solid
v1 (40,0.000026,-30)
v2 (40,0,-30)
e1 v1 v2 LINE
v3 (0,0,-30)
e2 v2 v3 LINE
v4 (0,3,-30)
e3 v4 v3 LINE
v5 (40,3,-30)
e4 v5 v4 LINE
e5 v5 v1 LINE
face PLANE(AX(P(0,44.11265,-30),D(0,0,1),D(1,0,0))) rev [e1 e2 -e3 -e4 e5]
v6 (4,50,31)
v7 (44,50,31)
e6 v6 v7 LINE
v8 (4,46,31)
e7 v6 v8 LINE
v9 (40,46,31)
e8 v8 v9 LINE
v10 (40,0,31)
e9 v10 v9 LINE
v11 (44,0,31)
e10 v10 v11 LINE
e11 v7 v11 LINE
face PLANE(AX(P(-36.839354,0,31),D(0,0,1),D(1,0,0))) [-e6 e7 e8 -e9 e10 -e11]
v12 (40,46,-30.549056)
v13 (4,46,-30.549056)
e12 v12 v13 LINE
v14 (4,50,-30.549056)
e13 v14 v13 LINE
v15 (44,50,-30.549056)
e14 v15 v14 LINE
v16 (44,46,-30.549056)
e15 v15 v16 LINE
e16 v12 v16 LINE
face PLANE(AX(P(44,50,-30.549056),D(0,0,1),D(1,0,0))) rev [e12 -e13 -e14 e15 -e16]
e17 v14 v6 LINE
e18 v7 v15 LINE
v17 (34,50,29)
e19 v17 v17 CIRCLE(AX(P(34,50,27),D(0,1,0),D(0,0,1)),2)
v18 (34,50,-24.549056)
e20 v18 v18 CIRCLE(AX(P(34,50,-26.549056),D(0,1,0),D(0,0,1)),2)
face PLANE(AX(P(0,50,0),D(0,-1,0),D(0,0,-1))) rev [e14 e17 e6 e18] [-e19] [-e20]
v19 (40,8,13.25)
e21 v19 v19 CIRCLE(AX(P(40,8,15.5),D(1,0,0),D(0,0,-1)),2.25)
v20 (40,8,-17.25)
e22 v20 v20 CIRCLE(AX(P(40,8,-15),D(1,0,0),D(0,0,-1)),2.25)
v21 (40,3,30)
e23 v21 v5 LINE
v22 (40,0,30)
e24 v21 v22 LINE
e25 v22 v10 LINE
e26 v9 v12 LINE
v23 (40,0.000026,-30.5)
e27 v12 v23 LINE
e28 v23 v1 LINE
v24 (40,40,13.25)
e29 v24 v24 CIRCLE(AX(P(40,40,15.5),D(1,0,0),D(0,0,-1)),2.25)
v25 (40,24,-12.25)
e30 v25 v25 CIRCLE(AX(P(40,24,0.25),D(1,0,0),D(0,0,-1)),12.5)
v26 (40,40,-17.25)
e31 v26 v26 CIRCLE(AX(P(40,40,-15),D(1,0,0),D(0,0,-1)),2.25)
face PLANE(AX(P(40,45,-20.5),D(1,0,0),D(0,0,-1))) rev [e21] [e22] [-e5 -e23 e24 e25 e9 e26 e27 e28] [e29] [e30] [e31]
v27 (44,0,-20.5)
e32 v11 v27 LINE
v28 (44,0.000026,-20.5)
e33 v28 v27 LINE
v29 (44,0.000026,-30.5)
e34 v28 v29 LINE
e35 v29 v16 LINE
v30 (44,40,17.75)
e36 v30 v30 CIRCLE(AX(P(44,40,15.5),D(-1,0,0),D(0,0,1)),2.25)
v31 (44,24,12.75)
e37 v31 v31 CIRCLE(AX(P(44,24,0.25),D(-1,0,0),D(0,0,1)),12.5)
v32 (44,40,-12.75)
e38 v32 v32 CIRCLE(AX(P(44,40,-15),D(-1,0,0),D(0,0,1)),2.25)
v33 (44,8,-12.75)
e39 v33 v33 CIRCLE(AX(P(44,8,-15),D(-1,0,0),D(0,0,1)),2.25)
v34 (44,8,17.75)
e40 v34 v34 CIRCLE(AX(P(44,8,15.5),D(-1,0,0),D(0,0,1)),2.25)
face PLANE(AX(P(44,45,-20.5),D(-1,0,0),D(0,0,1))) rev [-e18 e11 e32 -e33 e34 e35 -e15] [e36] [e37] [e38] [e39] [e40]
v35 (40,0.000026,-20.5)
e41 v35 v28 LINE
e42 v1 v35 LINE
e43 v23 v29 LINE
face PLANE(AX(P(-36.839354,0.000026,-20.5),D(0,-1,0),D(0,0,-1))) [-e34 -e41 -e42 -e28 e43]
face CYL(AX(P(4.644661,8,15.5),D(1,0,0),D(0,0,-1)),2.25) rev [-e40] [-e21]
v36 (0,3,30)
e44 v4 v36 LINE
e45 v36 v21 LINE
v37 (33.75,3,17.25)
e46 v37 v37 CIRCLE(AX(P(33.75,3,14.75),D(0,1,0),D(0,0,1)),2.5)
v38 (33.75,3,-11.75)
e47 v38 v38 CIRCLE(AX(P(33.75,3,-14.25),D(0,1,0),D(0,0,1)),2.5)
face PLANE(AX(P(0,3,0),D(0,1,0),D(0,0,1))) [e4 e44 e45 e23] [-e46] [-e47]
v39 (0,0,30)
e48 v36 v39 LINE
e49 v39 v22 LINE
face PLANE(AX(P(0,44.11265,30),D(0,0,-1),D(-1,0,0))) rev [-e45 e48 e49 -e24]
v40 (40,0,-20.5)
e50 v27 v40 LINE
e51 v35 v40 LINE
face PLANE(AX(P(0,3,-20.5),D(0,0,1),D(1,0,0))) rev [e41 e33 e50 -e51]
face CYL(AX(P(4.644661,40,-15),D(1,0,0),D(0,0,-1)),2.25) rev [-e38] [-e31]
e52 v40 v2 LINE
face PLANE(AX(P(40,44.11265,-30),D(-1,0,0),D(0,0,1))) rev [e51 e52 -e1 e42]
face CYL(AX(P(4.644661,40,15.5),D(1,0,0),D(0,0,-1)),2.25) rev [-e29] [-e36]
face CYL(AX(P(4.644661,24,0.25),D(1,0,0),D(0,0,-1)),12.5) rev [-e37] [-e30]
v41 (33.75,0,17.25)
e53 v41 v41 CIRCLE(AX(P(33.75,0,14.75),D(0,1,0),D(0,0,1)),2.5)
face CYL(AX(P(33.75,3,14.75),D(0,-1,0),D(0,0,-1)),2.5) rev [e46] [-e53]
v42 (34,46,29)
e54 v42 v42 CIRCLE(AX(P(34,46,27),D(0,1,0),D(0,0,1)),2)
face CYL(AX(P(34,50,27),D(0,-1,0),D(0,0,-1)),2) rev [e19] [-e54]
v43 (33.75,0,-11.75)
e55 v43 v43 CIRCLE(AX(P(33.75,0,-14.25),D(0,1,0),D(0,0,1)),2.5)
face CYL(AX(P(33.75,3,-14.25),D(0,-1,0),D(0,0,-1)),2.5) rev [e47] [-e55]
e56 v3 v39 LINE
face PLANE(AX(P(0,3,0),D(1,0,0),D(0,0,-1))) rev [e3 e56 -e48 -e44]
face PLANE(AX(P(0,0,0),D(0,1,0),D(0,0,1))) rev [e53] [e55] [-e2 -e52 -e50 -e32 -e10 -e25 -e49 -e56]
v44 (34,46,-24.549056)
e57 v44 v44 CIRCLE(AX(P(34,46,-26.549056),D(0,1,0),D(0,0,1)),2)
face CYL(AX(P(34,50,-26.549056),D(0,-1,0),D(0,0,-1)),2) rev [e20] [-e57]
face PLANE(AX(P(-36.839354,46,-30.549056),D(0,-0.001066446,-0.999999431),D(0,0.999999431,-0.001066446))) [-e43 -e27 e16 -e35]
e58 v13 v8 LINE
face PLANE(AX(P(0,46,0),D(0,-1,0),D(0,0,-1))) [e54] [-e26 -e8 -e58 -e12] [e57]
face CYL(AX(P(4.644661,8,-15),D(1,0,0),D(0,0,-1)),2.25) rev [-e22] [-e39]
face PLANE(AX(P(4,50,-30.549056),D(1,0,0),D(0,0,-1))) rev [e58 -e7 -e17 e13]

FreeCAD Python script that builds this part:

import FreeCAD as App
import Part
import Sketcher

V = App.Vector


def add_polygon(sketch, points):
    """Adds a closed chain of lines whose ends are joined by coincident constraints."""
    first, n = sketch.GeometryCount, len(points)
    for a, b in zip(points, points[1:] + points[:1]):
        sketch.addGeometry(Part.LineSegment(App.Vector(*a, 0), App.Vector(*b, 0)), False)
    for i in range(n):
        sketch.addConstraint(Sketcher.Constraint("Coincident", first + i, 2, first + (i + 1) % n, 1))

doc = App.newDocument("Part")
body = doc.addObject("PartDesign::Body", "Body")

# Sketch on XZ plane
sketch1 = doc.addObject("Sketcher::SketchObject", "Sketch")
body.addObject(sketch1)
sketch1.AttachmentSupport = (doc.XZ_Plane, [""])
sketch1.MapMode = "FlatFace"
add_polygon(sketch1, [(0, -20.5), (0, 21), (40, 21), (40, -20.5)])  # lines 0-3
sketch1.addGeometry(Part.Circle(V(33.8, 14.8, 0), V(0, 0, 1), 2.5), False)  # 4
sketch1.addGeometry(Part.Circle(V(33.8, -14.2, 0), V(0, 0, 1), 2.5), False)  # 5
sketch1.addConstraint(Sketcher.Constraint("Vertical", 0))
sketch1.addConstraint(Sketcher.Constraint("Horizontal", 1))
sketch1.addConstraint(Sketcher.Constraint("Vertical", 2))
sketch1.addConstraint(Sketcher.Constraint("Horizontal", 3))
sketch1.addConstraint(Sketcher.Constraint("Equal", 4, 5))
sketch1.addConstraint(Sketcher.Constraint("PointOnObject", 0, 2, -2))
sketch1.addConstraint(Sketcher.Constraint("Vertical", 4, 3, 5, 3))
sketch1.addConstraint(Sketcher.Constraint("Diameter", 4, 5.0))
sketch1.addConstraint(Sketcher.Constraint("DistanceX", 1, 1, 1, 2, 40.0))
sketch1.addConstraint(Sketcher.Constraint("DistanceY", 0, 1, 0, 2, 41.5))
sketch1.addConstraint(Sketcher.Constraint("DistanceY", -1, 1, 0, 2, 21.0))
sketch1.addConstraint(Sketcher.Constraint("DistanceY", 5, 3, 4, 3, 29.0))
sketch1.addConstraint(Sketcher.Constraint("DistanceX", -1, 1, 4, 3, 33.75))
sketch1.addConstraint(Sketcher.Constraint("DistanceY", -1, 1, 4, 3, 14.75))
pad1 = doc.addObject("PartDesign::Pad", "Pad")
body.addObject(pad1)
pad1.Profile = sketch1
pad1.Length = 3
pad1.Reversed = True

# Sketch on XZ plane
sketch2 = doc.addObject("Sketcher::SketchObject", "Sketch001")
body.addObject(sketch2)
sketch2.AttachmentSupport = (doc.XZ_Plane, [""])
sketch2.MapMode = "FlatFace"
add_polygon(sketch2, [(40, -20.5), (40, 21), (44, 21), (44, -20.5)])  # lines 0-3
sketch2.addConstraint(Sketcher.Constraint("Vertical", 0))
sketch2.addConstraint(Sketcher.Constraint("Horizontal", 1))
sketch2.addConstraint(Sketcher.Constraint("Vertical", 2))
sketch2.addConstraint(Sketcher.Constraint("Horizontal", 3))
sketch2.addConstraint(Sketcher.Constraint("DistanceX", 1, 1, 1, 2, 4.0))
sketch2.addConstraint(Sketcher.Constraint("DistanceY", 0, 1, 0, 2, 41.5))
sketch2.addConstraint(Sketcher.Constraint("DistanceX", -1, 1, 0, 2, 40.0))
sketch2.addConstraint(Sketcher.Constraint("DistanceY", -1, 1, 0, 2, 21.0))
pad2 = doc.addObject("PartDesign::Pad", "Pad001")
body.addObject(pad2)
pad2.Profile = sketch2
pad2.Length = 45
pad2.Reversed = True

# Sketch on YZ plane
sketch3 = doc.addObject("Sketcher::SketchObject", "Sketch002")
body.addObject(sketch3)
sketch3.AttachmentSupport = (doc.YZ_Plane, [""])
sketch3.MapMode = "FlatFace"
sketch3.AttachmentOffset = App.Placement(V(0, 0, 44), App.Rotation())
sketch3.addGeometry(Part.Circle(V(24, 0.2, 0), V(0, 0, 1), 12.5), False)
sketch3.addGeometry(Part.Circle(V(40, -15, 0), V(0, 0, 1), 2.2), False)
sketch3.addGeometry(Part.Circle(V(40, 15.5, 0), V(0, 0, 1), 2.2), False)
sketch3.addGeometry(Part.Circle(V(8, 15.5, 0), V(0, 0, 1), 2.2), False)
sketch3.addGeometry(Part.Circle(V(8, -15, 0), V(0, 0, 1), 2.2), False)
sketch3.addConstraint(Sketcher.Constraint("Equal", 1, 2))
sketch3.addConstraint(Sketcher.Constraint("Equal", 2, 3))
sketch3.addConstraint(Sketcher.Constraint("Equal", 3, 4))
sketch3.addConstraint(Sketcher.Constraint("Horizontal", 2, 3, 3, 3))
sketch3.addConstraint(Sketcher.Constraint("Horizontal", 1, 3, 4, 3))
sketch3.addConstraint(Sketcher.Constraint("Vertical", 1, 3, 2, 3))
sketch3.addConstraint(Sketcher.Constraint("Vertical", 3, 3, 4, 3))
sketch3.addConstraint(Sketcher.Constraint("Diameter", 0, 25.0))
sketch3.addConstraint(Sketcher.Constraint("Diameter", 1, 4.5))
sketch3.addConstraint(Sketcher.Constraint("DistanceX", -1, 1, 0, 3, 24.0))
sketch3.addConstraint(Sketcher.Constraint("DistanceX", -1, 1, 1, 3, 40.0))
sketch3.addConstraint(Sketcher.Constraint("DistanceY", 1, 3, -1, 1, 15.0))
sketch3.addConstraint(Sketcher.Constraint("DistanceX", -1, 1, 3, 3, 8.0))
sketch3.addConstraint(Sketcher.Constraint("DistanceY", -1, 1, 2, 3, 15.5))
sketch3.addConstraint(Sketcher.Constraint("DistanceY", -1, 1, 0, 3, 0.25))
pocket1 = doc.addObject("PartDesign::Pocket", "Pocket")
body.addObject(pocket1)
pocket1.Profile = sketch3
pocket1.Length = 4

# Sketch on YZ plane
sketch4 = doc.addObject("Sketcher::SketchObject", "Sketch003")
body.addObject(sketch4)
sketch4.AttachmentSupport = (doc.YZ_Plane, [""])
sketch4.MapMode = "FlatFace"
sketch4.AttachmentOffset = App.Placement(V(0, 0, 40), App.Rotation())
add_polygon(sketch4, [(0, 31), (0, 21), (45, 21), (45, -20), (0, -20), (0, -30), (46, -31), (46, 31)])  # lines 0-7
sketch4.addConstraint(Sketcher.Constraint("Vertical", 0))
sketch4.addConstraint(Sketcher.Constraint("Horizontal", 1))
sketch4.addConstraint(Sketcher.Constraint("Vertical", 2))
sketch4.addConstraint(Sketcher.Constraint("Horizontal", 3))
sketch4.addConstraint(Sketcher.Constraint("Vertical", 4))
sketch4.addConstraint(Sketcher.Constraint("Vertical", 6))
sketch4.addConstraint(Sketcher.Constraint("Horizontal", 7))
sketch4.addConstraint(Sketcher.Constraint("PointOnObject", 0, 2, -2))
sketch4.addConstraint(Sketcher.Constraint("Equal", 0, 4))
sketch4.addConstraint(Sketcher.Constraint("DistanceX", 1, 1, 1, 2, 45.0))
sketch4.addConstraint(Sketcher.Constraint("DistanceX", 7, 2, 7, 1, 46.0))
sketch4.addConstraint(Sketcher.Constraint("DistanceY", 0, 2, 0, 1, 10.0))
sketch4.addConstraint(Sketcher.Constraint("Distance", 5, 46.0))
sketch4.addConstraint(Sketcher.Constraint("DistanceY", 2, 2, 2, 1, 41.5))
sketch4.addConstraint(Sketcher.Constraint("DistanceY", -1, 1, 0, 2, 21.0))
sketch4.addConstraint(Sketcher.Constraint("DistanceY", 6, 1, 6, 2, 61.549056))
pad3 = doc.addObject("PartDesign::Pad", "Pad002")
body.addObject(pad3)
pad3.Profile = sketch4
pad3.Length = 4

# Sketch on XZ plane
sketch5 = doc.addObject("Sketcher::SketchObject", "Sketch004")
body.addObject(sketch5)
sketch5.AttachmentSupport = (doc.XZ_Plane, [""])
sketch5.MapMode = "FlatFace"
add_polygon(sketch5, [(0, -30), (0, -20), (40, -20), (40, -30)])  # lines 0-3
add_polygon(sketch5, [(0, 21), (0, 30), (40, 30), (40, 21)])  # lines 4-7
sketch5.addConstraint(Sketcher.Constraint("Vertical", 0))
sketch5.addConstraint(Sketcher.Constraint("Horizontal", 1))
sketch5.addConstraint(Sketcher.Constraint("Vertical", 2))
sketch5.addConstraint(Sketcher.Constraint("Horizontal", 3))
sketch5.addConstraint(Sketcher.Constraint("Vertical", 4))
sketch5.addConstraint(Sketcher.Constraint("Horizontal", 5))
sketch5.addConstraint(Sketcher.Constraint("Vertical", 6))
sketch5.addConstraint(Sketcher.Constraint("Horizontal", 7))
sketch5.addConstraint(Sketcher.Constraint("Symmetric", 3, 2, 4, 2, -1, 1))
sketch5.addConstraint(Sketcher.Constraint("PointOnObject", 0, 2, -2))
sketch5.addConstraint(Sketcher.Constraint("Vertical", 2, 2, 5, 2))
sketch5.addConstraint(Sketcher.Constraint("DistanceX", 1, 1, 1, 2, 40.0))
sketch5.addConstraint(Sketcher.Constraint("DistanceY", 4, 1, 4, 2, 9.0))
sketch5.addConstraint(Sketcher.Constraint("DistanceY", 0, 1, 0, 2, 9.5))
sketch5.addConstraint(Sketcher.Constraint("DistanceY", 2, 2, -1, 1, 30.0))
pad4 = doc.addObject("PartDesign::Pad", "Pad003")
body.addObject(pad4)
pad4.Profile = sketch5
pad4.Length = 3
pad4.Reversed = True

# Sketch on XZ plane
sketch6 = doc.addObject("Sketcher::SketchObject", "Sketch005")
body.addObject(sketch6)
sketch6.AttachmentSupport = (doc.XZ_Plane, [""])
sketch6.MapMode = "FlatFace"
sketch6.AttachmentOffset = App.Placement(V(0, 0, -46), App.Rotation())
add_polygon(sketch6, [(4, -30.5), (4, 31), (44, 31), (44, -30.5)])  # lines 0-3
sketch6.addGeometry(Part.Circle(V(34, 27, 0), V(0, 0, 1), 2), False)  # 4
sketch6.addGeometry(Part.Circle(V(34, -26.5, 0), V(0, 0, 1), 2), False)  # 5
sketch6.addConstraint(Sketcher.Constraint("Vertical", 0))
sketch6.addConstraint(Sketcher.Constraint("Horizontal", 1))
sketch6.addConstraint(Sketcher.Constraint("Vertical", 2))
sketch6.addConstraint(Sketcher.Constraint("Horizontal", 3))
sketch6.addConstraint(Sketcher.Constraint("Equal", 4, 5))
sketch6.addConstraint(Sketcher.Constraint("Vertical", 4, 3, 5, 3))
sketch6.addConstraint(Sketcher.Constraint("Diameter", 4, 4.0))
sketch6.addConstraint(Sketcher.Constraint("DistanceX", 1, 1, 1, 2, 40.0))
sketch6.addConstraint(Sketcher.Constraint("DistanceX", -1, 1, 4, 3, 34.0))
sketch6.addConstraint(Sketcher.Constraint("DistanceY", -1, 1, 4, 3, 27.0))
sketch6.addConstraint(Sketcher.Constraint("DistanceX", -1, 1, 0, 2, 4.0))
sketch6.addConstraint(Sketcher.Constraint("DistanceY", -1, 1, 0, 2, 31.0))
sketch6.addConstraint(Sketcher.Constraint("DistanceY", 2, 2, 5, 3, 4.0))
sketch6.addConstraint(Sketcher.Constraint("DistanceY", 0, 1, 0, 2, 61.549056))
pad5 = doc.addObject("PartDesign::Pad", "Pad004")
body.addObject(pad5)
pad5.Profile = sketch6
pad5.Length = 4
pad5.Reversed = True

doc.recompute()
